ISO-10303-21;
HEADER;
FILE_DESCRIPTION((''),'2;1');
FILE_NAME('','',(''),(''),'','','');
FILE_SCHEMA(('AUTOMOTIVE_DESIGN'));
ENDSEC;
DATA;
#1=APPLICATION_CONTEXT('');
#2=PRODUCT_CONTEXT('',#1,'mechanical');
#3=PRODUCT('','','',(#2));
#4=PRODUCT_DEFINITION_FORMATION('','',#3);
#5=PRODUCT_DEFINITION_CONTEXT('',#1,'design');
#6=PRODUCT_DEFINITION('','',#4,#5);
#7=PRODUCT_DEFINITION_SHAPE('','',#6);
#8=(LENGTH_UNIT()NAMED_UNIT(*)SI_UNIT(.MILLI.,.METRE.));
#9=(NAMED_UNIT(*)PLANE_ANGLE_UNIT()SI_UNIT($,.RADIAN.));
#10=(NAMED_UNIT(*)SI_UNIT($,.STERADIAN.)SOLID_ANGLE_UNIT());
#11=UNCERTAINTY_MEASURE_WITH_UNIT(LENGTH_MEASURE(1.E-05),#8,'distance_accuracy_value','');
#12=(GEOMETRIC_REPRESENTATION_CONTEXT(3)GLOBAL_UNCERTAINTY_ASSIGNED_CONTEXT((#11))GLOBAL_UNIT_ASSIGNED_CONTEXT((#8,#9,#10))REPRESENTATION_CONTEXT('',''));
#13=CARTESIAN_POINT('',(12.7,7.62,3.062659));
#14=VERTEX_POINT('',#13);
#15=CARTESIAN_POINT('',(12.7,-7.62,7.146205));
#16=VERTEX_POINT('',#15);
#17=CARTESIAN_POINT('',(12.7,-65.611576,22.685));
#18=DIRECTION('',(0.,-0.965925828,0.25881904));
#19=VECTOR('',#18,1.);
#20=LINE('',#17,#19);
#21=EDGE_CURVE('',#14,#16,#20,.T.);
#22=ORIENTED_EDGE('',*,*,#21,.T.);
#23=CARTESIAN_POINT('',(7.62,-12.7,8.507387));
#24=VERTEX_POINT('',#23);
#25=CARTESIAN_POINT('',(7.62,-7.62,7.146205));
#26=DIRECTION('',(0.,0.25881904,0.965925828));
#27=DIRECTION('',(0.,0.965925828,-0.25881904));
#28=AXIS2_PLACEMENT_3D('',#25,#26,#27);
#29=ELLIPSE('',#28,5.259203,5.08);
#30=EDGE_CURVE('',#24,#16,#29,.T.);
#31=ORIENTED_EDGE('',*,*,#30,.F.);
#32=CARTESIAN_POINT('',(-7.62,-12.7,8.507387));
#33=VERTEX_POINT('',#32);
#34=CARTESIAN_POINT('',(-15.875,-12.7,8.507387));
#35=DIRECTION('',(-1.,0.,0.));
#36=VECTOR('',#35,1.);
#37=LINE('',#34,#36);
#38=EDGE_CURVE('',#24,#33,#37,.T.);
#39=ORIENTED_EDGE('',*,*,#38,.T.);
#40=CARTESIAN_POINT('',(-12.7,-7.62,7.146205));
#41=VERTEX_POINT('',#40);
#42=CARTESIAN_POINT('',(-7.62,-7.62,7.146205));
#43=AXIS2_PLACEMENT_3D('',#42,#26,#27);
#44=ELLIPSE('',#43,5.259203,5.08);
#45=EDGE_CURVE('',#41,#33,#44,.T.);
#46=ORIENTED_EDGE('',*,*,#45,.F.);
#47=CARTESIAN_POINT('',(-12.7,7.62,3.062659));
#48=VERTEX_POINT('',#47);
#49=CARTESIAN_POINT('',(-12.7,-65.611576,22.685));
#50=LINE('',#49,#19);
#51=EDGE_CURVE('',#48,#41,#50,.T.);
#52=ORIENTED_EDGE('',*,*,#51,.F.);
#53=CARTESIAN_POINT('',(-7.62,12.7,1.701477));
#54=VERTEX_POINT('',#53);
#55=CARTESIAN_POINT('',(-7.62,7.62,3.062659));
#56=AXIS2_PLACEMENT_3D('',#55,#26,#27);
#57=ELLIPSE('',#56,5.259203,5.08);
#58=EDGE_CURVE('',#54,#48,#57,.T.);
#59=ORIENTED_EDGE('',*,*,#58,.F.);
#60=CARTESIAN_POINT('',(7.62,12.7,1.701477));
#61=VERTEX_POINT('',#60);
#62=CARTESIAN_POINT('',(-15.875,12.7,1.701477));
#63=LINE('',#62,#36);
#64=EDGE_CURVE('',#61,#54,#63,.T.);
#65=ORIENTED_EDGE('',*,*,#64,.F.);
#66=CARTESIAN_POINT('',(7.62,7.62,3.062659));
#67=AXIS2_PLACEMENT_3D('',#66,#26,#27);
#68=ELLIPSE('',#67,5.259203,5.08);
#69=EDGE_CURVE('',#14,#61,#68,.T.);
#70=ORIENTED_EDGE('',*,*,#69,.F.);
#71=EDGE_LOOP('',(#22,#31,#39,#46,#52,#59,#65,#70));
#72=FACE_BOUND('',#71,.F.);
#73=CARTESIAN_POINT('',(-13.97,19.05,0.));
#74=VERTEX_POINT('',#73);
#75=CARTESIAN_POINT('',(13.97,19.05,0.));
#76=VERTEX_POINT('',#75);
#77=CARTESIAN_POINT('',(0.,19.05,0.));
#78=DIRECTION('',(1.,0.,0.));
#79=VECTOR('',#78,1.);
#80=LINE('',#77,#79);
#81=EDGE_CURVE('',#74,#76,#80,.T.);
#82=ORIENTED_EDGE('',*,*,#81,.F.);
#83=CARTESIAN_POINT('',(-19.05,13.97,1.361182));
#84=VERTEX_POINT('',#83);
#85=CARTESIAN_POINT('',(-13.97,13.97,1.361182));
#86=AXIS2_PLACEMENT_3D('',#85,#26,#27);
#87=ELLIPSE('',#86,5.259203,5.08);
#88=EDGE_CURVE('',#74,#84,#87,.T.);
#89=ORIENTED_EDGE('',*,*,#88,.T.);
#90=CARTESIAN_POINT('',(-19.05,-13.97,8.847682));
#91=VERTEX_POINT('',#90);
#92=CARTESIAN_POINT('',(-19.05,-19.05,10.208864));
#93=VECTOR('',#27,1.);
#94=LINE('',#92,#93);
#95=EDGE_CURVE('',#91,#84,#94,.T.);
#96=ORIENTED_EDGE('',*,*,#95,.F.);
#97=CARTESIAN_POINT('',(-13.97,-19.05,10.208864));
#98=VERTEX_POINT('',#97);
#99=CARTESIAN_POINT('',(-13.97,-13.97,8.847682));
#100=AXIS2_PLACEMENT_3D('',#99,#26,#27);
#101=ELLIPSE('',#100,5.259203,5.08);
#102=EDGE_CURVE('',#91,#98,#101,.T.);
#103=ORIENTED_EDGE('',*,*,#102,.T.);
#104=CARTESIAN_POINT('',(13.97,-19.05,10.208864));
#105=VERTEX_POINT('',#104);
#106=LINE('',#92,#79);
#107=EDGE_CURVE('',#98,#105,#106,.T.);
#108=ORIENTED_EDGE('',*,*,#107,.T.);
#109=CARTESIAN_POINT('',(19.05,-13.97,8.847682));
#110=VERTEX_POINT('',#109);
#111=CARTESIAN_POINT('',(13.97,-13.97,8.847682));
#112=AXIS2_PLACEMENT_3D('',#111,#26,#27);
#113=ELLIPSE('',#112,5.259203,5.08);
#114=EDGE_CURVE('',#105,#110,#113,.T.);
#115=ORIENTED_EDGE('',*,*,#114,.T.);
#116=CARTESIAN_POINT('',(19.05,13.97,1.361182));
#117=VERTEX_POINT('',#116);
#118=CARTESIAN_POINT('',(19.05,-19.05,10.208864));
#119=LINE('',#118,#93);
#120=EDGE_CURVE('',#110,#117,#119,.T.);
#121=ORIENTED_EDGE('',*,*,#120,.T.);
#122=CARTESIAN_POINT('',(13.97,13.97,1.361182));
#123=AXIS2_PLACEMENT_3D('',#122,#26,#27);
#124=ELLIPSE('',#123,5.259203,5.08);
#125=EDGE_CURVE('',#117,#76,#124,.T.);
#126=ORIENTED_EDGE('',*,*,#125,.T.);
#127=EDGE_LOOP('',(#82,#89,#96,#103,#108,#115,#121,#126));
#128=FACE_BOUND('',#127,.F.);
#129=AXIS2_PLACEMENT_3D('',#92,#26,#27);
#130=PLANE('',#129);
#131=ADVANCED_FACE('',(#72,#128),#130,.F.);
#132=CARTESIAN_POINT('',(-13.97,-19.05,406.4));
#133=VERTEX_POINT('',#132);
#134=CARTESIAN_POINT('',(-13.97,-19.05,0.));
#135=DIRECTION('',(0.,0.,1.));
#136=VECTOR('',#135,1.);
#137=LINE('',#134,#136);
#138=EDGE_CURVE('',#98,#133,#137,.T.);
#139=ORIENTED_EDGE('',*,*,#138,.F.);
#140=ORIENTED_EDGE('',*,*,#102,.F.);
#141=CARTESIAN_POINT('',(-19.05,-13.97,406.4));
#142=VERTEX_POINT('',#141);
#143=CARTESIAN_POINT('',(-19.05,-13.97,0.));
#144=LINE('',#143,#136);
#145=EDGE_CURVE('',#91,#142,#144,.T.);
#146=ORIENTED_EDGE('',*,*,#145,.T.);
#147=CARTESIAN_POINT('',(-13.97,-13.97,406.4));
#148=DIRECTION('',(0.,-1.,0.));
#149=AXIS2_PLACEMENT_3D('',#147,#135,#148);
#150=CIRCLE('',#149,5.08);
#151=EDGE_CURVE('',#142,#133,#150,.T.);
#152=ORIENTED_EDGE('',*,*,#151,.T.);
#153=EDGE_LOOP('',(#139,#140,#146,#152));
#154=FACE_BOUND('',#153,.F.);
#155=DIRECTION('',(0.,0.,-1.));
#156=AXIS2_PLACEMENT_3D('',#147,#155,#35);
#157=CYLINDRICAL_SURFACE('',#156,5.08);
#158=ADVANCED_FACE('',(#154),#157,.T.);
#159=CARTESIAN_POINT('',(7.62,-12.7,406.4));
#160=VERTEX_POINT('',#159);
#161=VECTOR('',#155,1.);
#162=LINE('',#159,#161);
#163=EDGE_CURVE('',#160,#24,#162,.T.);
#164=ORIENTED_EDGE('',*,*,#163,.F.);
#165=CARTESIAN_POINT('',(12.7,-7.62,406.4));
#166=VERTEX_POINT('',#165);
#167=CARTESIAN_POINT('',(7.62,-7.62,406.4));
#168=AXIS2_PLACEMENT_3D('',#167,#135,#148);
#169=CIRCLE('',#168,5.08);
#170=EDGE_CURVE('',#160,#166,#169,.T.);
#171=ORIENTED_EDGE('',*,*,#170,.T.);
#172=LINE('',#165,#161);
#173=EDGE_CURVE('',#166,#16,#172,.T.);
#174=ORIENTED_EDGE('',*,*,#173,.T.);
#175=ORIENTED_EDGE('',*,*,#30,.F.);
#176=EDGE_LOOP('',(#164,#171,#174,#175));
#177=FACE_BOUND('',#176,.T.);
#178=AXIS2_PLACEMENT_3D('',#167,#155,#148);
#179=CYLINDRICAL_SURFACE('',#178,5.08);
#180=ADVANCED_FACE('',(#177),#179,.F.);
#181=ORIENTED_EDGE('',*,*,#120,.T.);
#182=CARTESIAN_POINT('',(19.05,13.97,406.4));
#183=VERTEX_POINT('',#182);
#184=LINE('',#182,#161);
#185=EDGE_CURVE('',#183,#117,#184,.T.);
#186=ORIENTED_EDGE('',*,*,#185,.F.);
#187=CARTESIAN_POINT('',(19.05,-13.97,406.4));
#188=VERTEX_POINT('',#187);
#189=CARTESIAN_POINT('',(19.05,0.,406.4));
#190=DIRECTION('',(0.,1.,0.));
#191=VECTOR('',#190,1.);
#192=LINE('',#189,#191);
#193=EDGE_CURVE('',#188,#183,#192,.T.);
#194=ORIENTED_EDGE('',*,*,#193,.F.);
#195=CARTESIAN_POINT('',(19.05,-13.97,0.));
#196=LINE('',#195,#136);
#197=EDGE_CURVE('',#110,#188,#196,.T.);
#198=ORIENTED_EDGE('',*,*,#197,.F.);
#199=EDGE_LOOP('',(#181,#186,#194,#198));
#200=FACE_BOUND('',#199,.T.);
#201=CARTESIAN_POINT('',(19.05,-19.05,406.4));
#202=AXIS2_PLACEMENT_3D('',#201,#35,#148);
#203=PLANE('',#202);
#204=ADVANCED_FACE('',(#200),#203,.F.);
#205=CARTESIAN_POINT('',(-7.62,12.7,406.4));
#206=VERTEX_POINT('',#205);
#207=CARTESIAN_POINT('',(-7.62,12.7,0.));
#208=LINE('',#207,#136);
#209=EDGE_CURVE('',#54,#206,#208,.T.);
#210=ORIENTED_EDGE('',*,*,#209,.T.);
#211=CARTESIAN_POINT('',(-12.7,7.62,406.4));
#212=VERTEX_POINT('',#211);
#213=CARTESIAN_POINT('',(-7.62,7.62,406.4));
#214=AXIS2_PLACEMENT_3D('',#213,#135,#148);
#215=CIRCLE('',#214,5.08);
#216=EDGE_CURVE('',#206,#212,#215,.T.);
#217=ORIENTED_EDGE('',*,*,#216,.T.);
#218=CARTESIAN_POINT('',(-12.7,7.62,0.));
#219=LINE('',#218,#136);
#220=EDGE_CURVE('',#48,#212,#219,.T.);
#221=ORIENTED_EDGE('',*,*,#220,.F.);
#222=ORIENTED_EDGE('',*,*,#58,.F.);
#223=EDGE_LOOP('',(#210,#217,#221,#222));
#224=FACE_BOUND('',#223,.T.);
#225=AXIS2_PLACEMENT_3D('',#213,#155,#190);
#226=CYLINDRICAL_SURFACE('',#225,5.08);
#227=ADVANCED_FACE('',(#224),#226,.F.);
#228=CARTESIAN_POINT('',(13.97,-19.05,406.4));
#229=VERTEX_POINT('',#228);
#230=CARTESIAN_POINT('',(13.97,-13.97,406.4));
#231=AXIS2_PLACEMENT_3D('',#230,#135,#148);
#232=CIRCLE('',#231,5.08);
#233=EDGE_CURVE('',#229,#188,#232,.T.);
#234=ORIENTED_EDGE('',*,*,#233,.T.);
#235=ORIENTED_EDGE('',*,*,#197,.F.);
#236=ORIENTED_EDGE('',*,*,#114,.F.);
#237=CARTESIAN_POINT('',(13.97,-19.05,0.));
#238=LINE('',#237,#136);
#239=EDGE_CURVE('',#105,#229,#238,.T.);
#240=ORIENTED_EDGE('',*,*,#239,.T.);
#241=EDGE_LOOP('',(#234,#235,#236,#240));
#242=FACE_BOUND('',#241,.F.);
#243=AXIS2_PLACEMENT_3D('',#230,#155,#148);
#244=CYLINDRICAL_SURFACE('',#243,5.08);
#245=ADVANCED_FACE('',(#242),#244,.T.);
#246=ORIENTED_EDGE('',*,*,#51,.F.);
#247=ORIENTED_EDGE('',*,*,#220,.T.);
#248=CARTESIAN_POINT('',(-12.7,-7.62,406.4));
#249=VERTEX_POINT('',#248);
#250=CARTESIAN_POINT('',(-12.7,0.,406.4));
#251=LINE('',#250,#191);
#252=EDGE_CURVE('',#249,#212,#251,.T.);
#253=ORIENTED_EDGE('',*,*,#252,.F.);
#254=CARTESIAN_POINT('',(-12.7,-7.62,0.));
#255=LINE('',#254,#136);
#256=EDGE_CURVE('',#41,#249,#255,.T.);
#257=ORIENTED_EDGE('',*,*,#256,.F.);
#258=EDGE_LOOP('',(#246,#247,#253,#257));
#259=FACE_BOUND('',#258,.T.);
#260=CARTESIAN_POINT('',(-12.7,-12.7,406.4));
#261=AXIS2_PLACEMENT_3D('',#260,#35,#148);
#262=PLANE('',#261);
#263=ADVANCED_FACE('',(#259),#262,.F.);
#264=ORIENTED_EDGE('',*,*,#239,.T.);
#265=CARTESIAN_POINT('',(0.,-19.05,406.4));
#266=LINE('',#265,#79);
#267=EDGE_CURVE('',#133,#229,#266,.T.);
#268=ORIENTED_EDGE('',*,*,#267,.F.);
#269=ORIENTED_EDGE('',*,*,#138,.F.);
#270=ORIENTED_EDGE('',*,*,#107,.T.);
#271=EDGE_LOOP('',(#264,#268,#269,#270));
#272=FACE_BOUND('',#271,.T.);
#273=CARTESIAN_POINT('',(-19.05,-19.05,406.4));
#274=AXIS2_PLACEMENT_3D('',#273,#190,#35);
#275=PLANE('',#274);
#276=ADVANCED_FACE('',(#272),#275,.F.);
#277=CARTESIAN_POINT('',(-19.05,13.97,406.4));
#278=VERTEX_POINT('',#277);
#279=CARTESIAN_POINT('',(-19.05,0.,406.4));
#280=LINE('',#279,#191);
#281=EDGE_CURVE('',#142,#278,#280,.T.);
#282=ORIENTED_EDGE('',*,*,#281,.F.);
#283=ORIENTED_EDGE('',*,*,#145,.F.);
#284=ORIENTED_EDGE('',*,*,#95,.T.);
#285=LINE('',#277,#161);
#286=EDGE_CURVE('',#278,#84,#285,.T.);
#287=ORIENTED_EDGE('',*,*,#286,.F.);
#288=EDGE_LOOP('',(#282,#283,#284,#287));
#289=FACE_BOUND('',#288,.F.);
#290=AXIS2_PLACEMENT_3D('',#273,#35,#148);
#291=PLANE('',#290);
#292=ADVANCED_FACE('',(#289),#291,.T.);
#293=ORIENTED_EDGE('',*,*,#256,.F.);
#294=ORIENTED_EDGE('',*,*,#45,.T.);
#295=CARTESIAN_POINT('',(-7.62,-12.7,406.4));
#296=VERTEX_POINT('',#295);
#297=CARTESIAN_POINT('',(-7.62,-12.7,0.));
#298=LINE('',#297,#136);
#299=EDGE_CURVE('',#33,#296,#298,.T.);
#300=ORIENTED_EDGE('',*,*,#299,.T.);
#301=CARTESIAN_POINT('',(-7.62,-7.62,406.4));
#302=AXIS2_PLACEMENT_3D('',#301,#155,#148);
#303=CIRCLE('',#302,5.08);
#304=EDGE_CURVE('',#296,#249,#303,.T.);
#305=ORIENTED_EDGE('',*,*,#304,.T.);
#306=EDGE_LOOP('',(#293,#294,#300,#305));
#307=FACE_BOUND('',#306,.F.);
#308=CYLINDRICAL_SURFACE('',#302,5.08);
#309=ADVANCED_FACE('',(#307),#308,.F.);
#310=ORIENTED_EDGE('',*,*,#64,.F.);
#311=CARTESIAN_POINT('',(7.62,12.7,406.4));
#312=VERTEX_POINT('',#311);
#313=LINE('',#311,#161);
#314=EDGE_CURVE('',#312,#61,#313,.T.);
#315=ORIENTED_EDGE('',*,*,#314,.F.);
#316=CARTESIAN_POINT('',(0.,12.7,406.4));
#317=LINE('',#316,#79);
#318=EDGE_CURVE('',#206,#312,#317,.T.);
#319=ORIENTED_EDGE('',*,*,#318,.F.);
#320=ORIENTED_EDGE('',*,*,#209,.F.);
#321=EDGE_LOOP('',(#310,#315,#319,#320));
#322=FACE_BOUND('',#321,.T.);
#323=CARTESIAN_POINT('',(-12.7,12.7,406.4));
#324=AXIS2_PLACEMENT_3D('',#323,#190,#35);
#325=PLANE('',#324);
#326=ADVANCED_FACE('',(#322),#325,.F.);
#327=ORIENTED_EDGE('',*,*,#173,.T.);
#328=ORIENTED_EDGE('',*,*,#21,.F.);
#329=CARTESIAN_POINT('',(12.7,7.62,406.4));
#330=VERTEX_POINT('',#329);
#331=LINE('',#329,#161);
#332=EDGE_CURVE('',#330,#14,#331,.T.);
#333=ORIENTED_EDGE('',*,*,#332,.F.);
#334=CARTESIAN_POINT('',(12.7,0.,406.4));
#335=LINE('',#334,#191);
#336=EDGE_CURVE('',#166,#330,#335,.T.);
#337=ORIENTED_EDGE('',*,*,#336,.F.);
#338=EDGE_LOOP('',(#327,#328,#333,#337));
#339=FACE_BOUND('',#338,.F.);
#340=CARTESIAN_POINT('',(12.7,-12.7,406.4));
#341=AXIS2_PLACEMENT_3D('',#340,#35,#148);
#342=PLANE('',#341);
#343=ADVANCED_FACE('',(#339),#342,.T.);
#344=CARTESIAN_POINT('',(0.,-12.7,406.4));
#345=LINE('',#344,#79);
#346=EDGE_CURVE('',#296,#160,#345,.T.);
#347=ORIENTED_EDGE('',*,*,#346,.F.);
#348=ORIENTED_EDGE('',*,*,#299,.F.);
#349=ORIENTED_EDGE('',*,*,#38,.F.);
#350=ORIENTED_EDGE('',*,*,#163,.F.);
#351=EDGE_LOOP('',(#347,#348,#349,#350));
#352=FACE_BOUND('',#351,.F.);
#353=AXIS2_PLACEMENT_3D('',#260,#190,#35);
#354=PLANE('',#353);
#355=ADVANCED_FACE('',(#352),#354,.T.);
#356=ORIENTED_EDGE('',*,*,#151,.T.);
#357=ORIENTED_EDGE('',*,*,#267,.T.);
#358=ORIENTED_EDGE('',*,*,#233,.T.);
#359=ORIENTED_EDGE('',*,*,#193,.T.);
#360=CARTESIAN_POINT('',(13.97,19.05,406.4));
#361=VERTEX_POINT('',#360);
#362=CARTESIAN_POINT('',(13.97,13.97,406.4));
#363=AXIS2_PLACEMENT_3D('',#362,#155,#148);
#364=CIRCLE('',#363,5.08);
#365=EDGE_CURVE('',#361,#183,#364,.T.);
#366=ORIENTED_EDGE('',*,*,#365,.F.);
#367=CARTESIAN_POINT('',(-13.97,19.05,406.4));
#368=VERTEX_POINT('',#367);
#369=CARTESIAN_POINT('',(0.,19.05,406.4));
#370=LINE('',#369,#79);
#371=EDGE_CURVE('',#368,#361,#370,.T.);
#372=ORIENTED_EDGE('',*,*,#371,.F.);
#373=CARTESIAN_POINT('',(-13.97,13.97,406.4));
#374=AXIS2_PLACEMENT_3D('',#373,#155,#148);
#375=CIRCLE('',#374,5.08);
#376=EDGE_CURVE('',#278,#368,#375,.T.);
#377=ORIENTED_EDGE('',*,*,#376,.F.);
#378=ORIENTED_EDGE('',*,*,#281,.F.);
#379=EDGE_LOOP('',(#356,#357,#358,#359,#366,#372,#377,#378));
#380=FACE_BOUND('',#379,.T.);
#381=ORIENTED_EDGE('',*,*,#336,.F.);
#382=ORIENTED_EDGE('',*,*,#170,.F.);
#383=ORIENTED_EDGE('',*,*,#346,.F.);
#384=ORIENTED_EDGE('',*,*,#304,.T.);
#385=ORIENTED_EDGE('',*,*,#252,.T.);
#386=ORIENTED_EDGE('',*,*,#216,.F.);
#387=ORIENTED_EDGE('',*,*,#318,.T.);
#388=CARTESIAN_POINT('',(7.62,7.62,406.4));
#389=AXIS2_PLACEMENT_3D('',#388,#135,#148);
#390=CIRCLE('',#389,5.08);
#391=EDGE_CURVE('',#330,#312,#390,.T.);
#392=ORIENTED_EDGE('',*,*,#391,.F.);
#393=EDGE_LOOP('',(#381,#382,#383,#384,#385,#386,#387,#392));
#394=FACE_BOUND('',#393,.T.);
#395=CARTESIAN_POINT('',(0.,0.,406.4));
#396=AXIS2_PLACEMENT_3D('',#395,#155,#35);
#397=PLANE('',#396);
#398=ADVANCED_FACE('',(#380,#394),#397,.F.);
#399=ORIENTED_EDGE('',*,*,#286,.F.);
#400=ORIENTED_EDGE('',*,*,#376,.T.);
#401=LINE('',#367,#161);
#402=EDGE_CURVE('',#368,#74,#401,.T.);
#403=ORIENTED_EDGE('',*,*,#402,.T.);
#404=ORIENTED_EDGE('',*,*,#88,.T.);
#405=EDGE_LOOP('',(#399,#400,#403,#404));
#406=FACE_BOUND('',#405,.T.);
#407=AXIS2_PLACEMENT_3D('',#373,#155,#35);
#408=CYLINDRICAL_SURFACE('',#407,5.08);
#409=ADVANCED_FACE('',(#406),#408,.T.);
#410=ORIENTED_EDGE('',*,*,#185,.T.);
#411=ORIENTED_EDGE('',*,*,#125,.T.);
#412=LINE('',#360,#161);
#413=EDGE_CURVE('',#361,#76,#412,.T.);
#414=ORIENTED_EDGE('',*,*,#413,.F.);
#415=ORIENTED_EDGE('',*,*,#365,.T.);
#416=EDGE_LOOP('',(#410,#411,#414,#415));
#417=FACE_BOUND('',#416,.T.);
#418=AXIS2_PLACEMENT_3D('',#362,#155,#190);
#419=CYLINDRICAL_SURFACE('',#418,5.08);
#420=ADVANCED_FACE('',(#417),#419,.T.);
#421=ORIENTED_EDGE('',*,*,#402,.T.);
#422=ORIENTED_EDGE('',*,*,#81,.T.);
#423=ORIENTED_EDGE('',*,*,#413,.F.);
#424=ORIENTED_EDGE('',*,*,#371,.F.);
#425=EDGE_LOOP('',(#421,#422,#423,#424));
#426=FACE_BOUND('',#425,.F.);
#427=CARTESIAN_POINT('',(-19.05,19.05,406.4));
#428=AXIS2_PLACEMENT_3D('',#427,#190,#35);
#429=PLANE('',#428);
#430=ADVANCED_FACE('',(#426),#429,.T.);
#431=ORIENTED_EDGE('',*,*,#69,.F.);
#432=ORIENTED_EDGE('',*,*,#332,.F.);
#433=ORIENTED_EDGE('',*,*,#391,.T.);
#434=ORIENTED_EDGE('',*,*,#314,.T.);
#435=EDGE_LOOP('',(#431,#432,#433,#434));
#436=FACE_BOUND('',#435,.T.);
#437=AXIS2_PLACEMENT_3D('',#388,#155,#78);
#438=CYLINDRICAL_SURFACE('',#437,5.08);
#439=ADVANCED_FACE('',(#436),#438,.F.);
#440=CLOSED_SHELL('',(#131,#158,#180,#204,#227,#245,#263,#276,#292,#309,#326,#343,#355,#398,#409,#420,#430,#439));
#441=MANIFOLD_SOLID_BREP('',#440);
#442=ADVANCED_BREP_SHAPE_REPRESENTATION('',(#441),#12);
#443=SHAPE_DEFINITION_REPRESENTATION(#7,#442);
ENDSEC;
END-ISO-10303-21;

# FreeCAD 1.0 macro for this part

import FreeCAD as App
import Part
import Sketcher
Q = App.Units.Quantity


def edges_at(feature, points):
    """Names of the edges that pass closest to the given points."""
    edges = feature.Shape.Edges
    near = lambda p: min(range(len(edges)), key=lambda i: edges[i].distToShape(Part.Vertex(*p))[0])
    return sorted({f"Edge{near(p) + 1}" for p in points})

doc = App.newDocument("Part")
body = doc.addObject("PartDesign::Body", "Body")

# Sketch on XY plane
sketch1 = body.newObject("Sketcher::SketchObject", "Sketch")
sketch1.AttachmentSupport = (doc.getObject("XY_Plane"), [""])
sketch1.MapMode = "FlatFace"
sketch1.addGeometry([
    Part.LineSegment(App.Vector(-19, 19, 0), App.Vector(-19, -19, 0)),  # 0
    Part.LineSegment(App.Vector(-19, -19, 0), App.Vector(19, -19, 0)),  # 1
    Part.LineSegment(App.Vector(19, -19, 0), App.Vector(19, 19, 0)),  # 2
    Part.LineSegment(App.Vector(19, 19, 0), App.Vector(-19, 19, 0)),  # 3
    Part.LineSegment(App.Vector(13, -13, 0), App.Vector(-13, -13, 0)),  # 4
    Part.LineSegment(App.Vector(-13, -13, 0), App.Vector(-13, 13, 0)),  # 5
    Part.LineSegment(App.Vector(-13, 13, 0), App.Vector(13, 13, 0)),  # 6
    Part.LineSegment(App.Vector(13, 13, 0), App.Vector(13, -13, 0)),  # 7
], False)
sketch1.addConstraint([
    Sketcher.Constraint("Coincident", 0, 2, 1, 1),
    Sketcher.Constraint("Coincident", 1, 2, 2, 1),
    Sketcher.Constraint("Coincident", 2, 2, 3, 1),
    Sketcher.Constraint("Coincident", 3, 2, 0, 1),
    Sketcher.Constraint("Coincident", 4, 2, 5, 1),
    Sketcher.Constraint("Coincident", 5, 2, 6, 1),
    Sketcher.Constraint("Coincident", 6, 2, 7, 1),
    Sketcher.Constraint("Coincident", 7, 2, 4, 1),
    Sketcher.Constraint("Vertical", 0),
    Sketcher.Constraint("Horizontal", 1),
    Sketcher.Constraint("Vertical", 2),
    Sketcher.Constraint("Horizontal", 3),
    Sketcher.Constraint("Horizontal", 4),
    Sketcher.Constraint("Vertical", 5),
    Sketcher.Constraint("Horizontal", 6),
    Sketcher.Constraint("Vertical", 7),
    Sketcher.Constraint("Symmetric", 0, 2, 2, 2, -1, 1),
    Sketcher.Constraint("Symmetric", 4, 2, 6, 2, -1, 1),
    Sketcher.Constraint("Equal", 3, 0),
    Sketcher.Constraint("Equal", 6, 5),
    Sketcher.Constraint("DistanceX", 4, 2, 4, 1, Q("1 in")),
    Sketcher.Constraint("DistanceX", 1, 1, 1, 2, Q("1.5 in")),
])
pad1 = body.newObject("PartDesign::Pad", "Pad")
pad1.Profile = sketch1
pad1.Length = Q("8 in")
doc.recompute()

fillet = body.newObject("PartDesign::Fillet", "Fillet")
fillet.Base = (pad1, edges_at(pad1, [
    (-19.05, 19.05, 101.6),
    (-19.05, -19.05, 101.6),
    (19.05, -19.05, 101.6),
    (19.05, 19.05, 101.6),
    (-12.7, 12.7, 101.6),
    (12.7, 12.7, 101.6),
    (12.7, -12.7, 101.6),
    (-12.7, -12.7, 101.6),
]))
fillet.Radius = Q("0.2 in")
body2 = doc.addObject("PartDesign::Body", "Body001")
doc.recompute()

body2.BaseFeature = body
doc.recompute()

mirroring = doc.addObject("Part::Mirroring", "Mirroring")
mirroring.Source = body
mirroring.Base = App.Vector(0, 0, 203.2)
mirroring.Normal = App.Vector(0, 0, 1)
body3 = doc.addObject("PartDesign::Body", "Body002")
body3.BaseFeature = mirroring
boolean = body2.newObject("PartDesign::Boolean", "Boolean")
boolean.Type = "Fuse"
boolean.addObjects([body3])
doc.recompute()

# Sketch on YZ plane
sketch2 = body2.newObject("Sketcher::SketchObject", "Sketch001")
sketch2.AttachmentSupport = (doc.getObject("YZ_Plane001"), [""])
sketch2.MapMode = "FlatFace"
sketch2.AttachmentOffset = App.Placement(App.Vector(0, 0, -0.75 * 25.4), App.Rotation())
sketch2.addGeometry([
    Part.LineSegment(App.Vector(-19, 10, 0), App.Vector(19, 0, 0)),
    Part.LineSegment(App.Vector(19, 0, 0), App.Vector(-19, 0, 0)),
    Part.LineSegment(App.Vector(-19, 0, 0), App.Vector(-19, 10, 0)),
], False)
sketch2.addConstraint([
    Sketcher.Constraint("Coincident", 0, 2, 1, 1),
    Sketcher.Constraint("Coincident", 1, 2, 2, 1),
    Sketcher.Constraint("Coincident", 2, 2, 0, 1),
    Sketcher.Constraint("Horizontal", 1),
    Sketcher.Constraint("Vertical", 2),
    Sketcher.Constraint("Symmetric", 0, 2, 1, 2, -1, 1),
    Sketcher.Constraint("DistanceX", 1, 2, 1, 1, Q("1.5 in")),
    Sketcher.Constraint("Angle", 0, Q("-15 deg")),
])
pocket1 = body2.newObject("PartDesign::Pocket", "Pocket")
pocket1.Profile = sketch2
pocket1.Type = "ThroughAll"
pocket1.Reversed = True
mirroring.Visibility = False

doc.recompute()
